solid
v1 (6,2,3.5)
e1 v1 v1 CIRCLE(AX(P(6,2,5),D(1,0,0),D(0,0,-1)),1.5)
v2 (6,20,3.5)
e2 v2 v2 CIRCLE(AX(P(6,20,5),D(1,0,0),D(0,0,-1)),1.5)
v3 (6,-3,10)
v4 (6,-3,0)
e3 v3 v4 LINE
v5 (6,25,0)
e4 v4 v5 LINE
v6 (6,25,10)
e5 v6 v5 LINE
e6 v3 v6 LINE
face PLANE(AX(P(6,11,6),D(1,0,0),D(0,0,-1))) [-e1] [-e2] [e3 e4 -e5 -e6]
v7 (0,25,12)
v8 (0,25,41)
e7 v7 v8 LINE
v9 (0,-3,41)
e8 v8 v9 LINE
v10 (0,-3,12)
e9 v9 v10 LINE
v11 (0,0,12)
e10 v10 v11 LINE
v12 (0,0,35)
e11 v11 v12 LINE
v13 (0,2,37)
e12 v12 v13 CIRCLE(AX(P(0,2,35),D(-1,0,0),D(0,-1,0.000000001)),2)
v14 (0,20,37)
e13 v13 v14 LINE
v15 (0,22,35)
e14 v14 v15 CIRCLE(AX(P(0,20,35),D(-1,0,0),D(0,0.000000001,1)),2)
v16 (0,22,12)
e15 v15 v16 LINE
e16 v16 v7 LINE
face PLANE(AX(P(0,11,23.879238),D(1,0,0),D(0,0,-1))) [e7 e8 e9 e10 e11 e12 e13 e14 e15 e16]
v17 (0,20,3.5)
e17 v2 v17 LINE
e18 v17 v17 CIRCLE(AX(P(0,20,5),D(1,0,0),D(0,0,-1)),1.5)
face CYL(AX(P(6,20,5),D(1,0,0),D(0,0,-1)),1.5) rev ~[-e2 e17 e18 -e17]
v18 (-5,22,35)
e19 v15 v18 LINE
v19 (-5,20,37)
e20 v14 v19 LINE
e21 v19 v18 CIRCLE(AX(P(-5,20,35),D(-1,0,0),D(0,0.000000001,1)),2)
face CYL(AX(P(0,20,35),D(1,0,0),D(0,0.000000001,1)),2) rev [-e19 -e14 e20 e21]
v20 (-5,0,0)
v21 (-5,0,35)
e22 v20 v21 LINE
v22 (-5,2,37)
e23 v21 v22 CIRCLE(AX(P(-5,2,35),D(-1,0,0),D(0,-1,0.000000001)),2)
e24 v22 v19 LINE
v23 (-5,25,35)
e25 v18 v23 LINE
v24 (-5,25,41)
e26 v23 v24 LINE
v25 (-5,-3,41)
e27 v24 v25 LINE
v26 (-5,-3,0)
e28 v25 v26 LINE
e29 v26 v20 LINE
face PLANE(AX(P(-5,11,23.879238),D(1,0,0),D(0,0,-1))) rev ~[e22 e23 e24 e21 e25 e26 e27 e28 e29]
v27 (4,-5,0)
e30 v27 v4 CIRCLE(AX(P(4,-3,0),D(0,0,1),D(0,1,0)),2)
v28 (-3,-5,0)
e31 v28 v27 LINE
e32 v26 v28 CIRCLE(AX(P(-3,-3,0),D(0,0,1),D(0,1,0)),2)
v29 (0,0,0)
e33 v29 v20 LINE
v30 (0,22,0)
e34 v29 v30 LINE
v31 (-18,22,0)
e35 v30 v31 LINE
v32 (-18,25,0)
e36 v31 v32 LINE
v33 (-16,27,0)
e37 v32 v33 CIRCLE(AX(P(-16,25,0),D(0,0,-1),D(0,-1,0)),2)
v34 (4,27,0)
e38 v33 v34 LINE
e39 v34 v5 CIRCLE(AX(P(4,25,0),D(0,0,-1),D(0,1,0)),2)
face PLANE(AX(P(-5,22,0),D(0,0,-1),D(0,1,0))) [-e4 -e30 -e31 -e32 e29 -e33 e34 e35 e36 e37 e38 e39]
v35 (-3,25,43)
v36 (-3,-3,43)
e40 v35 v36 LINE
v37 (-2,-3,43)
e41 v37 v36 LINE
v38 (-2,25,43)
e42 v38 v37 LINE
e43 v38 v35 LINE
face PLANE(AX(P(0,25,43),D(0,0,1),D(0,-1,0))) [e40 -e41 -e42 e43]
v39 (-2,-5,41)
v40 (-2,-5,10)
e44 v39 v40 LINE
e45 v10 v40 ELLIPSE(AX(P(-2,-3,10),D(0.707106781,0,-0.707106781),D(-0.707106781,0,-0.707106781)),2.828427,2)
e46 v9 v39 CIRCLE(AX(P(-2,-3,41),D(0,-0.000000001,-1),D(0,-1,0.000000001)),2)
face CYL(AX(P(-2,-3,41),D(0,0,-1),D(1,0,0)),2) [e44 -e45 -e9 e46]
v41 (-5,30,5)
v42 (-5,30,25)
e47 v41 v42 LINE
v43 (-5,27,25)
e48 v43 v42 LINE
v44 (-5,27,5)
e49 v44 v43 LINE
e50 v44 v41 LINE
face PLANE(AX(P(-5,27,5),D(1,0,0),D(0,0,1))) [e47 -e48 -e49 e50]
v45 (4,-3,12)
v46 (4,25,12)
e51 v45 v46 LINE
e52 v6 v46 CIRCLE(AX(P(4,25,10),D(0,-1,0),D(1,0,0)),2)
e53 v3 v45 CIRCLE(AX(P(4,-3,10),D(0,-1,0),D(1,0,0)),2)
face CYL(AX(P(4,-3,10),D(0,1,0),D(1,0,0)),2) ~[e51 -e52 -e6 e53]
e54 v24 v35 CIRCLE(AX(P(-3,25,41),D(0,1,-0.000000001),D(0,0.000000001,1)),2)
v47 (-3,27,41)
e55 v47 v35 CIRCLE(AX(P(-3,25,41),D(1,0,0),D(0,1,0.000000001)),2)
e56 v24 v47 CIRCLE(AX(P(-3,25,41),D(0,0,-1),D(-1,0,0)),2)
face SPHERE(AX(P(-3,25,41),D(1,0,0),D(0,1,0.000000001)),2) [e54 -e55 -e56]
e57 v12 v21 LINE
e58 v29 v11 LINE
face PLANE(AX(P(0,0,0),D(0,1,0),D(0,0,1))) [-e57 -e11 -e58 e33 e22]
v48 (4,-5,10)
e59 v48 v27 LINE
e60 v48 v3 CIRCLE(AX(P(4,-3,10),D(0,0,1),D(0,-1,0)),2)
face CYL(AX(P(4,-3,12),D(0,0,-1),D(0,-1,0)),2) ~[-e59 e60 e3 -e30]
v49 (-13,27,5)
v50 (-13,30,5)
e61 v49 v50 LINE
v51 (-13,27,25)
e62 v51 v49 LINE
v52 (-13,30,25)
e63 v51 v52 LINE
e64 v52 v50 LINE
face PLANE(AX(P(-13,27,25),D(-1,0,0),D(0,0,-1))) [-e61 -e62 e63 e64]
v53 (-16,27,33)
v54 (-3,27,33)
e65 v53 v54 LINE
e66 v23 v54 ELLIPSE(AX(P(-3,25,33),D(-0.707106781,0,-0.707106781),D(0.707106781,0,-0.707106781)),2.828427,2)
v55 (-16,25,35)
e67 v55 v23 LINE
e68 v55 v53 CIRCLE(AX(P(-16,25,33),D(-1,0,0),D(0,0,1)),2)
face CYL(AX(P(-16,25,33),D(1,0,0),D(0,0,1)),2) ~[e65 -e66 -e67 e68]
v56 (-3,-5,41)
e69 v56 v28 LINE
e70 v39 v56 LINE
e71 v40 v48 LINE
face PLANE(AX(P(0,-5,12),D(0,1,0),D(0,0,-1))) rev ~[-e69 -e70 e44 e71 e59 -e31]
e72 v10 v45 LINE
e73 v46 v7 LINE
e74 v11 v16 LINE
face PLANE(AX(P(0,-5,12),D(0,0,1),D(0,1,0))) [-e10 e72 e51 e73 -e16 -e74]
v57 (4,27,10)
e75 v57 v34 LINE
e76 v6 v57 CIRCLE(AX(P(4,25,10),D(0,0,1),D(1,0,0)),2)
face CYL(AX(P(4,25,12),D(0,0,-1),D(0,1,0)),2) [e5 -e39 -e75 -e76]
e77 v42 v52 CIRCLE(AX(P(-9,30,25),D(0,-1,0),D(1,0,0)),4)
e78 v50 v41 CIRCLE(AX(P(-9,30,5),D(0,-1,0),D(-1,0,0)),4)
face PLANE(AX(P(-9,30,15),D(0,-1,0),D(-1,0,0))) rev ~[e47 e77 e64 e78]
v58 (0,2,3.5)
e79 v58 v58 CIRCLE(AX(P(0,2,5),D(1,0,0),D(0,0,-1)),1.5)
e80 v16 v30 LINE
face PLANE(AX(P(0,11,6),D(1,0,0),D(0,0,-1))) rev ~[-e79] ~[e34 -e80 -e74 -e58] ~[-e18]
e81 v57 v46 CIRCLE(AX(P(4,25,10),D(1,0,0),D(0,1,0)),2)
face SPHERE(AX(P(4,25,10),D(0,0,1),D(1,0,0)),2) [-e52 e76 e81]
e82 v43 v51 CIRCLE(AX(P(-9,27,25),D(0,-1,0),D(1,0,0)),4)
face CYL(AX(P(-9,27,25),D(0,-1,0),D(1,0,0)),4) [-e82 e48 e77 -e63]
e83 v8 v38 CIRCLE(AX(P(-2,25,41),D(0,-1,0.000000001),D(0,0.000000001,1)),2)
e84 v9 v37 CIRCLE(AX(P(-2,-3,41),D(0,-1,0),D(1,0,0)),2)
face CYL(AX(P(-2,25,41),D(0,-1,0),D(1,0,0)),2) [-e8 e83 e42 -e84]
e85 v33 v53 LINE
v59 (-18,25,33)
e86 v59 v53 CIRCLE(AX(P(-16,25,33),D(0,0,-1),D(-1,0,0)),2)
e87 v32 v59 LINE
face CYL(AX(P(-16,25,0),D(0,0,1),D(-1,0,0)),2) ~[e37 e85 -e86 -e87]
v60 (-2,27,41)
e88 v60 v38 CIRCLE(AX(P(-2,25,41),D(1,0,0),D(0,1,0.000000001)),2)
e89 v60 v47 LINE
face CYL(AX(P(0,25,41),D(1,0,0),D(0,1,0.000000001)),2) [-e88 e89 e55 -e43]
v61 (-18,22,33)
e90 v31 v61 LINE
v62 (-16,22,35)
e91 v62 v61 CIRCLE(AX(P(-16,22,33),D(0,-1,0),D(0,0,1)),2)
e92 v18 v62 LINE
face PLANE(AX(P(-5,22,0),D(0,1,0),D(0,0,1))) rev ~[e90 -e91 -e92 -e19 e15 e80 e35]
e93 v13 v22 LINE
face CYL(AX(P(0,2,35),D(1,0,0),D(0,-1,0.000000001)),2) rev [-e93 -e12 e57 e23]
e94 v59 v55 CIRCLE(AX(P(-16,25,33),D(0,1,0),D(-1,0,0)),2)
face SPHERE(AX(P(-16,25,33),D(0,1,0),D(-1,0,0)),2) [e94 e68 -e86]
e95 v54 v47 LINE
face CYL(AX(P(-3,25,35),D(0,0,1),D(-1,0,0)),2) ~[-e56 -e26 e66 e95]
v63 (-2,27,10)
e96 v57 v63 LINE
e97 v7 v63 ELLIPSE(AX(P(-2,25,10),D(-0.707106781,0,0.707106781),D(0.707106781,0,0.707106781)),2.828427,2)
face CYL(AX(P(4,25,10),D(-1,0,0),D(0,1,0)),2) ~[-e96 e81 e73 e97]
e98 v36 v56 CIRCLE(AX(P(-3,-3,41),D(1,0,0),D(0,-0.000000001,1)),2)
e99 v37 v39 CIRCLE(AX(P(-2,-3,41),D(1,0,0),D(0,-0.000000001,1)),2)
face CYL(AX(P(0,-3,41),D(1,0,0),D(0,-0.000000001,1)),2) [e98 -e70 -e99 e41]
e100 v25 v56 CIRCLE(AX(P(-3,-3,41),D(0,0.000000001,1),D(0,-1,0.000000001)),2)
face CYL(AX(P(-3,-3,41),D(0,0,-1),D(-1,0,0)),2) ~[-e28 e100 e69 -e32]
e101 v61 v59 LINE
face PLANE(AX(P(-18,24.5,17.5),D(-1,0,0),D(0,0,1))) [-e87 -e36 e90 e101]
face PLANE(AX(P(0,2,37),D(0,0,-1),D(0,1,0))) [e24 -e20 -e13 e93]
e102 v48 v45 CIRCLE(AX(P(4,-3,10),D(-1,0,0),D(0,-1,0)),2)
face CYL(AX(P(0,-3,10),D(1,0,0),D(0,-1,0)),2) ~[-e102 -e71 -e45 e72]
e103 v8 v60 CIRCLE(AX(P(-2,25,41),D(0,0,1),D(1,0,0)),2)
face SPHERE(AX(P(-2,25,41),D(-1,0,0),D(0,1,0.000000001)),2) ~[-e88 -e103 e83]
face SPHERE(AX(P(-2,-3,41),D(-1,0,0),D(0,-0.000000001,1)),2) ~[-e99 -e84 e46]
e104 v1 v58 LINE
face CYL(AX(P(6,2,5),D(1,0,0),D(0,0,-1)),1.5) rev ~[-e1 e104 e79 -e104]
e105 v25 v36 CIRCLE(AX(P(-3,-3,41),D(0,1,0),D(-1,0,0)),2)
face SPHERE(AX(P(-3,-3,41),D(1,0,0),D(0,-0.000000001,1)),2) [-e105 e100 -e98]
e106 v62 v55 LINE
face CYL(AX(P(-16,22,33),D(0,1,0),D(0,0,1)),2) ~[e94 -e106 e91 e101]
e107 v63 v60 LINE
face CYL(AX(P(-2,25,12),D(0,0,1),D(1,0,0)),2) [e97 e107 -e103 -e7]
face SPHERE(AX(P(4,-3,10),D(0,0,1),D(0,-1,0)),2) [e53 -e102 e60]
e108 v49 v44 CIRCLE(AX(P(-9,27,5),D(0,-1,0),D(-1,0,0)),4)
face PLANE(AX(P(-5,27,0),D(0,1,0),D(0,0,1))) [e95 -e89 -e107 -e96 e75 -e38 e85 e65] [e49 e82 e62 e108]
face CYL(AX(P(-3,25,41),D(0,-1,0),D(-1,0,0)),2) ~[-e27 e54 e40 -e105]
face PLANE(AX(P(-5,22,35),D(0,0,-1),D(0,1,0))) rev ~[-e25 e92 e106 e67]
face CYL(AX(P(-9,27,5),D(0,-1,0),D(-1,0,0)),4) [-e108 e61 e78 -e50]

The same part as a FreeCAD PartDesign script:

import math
import FreeCAD as App
import Part
import Sketcher

V = App.Vector


def edges_at(feature, points):
    """Names of the edges that pass closest to the given points."""
    edges = feature.Shape.Edges
    near = lambda p: min(range(len(edges)), key=lambda i: edges[i].distToShape(Part.Vertex(*p))[0])
    return sorted({f"Edge{near(p) + 1}" for p in points})

doc = App.newDocument("Part")
body = doc.addObject("PartDesign::Body", "Body")

# Sketch on YZ plane
sketch1 = doc.addObject("Sketcher::SketchObject", "Sketch")
body.addObject(sketch1)
sketch1.AttachmentSupport = (doc.YZ_Plane, [""])
sketch1.MapMode = "FlatFace"
sketch1.addGeometry(Part.LineSegment(V(22, 0, 0), V(27, 0, 0)), False)
sketch1.addGeometry(Part.LineSegment(V(27, 0, 0), V(27, 41, 0)), False)
sketch1.addGeometry(Part.ArcOfCircle(Part.Circle(V(25, 41, 0), V(0, 0, 1), 2), math.radians(0), math.radians(90)), False)
sketch1.addGeometry(Part.LineSegment(V(25, 43, 0), V(-3, 43, 0)), False)
sketch1.addGeometry(Part.ArcOfCircle(Part.Circle(V(-3, 41, 0), V(0, 0, 1), 2), math.radians(90), math.radians(180)), False)
sketch1.addGeometry(Part.LineSegment(V(-5, 41, 0), V(-5, 0, 0)), False)
sketch1.addGeometry(Part.LineSegment(V(-5, 0, 0), V(0, 0, 0)), False)
sketch1.addGeometry(Part.LineSegment(V(0, 0, 0), V(0, 35, 0)), False)
sketch1.addGeometry(Part.ArcOfCircle(Part.Circle(V(2, 35, 0), V(0, 0, 1), 2), math.radians(90), math.radians(180)), False)
sketch1.addGeometry(Part.LineSegment(V(2, 37, 0), V(20, 37, 0)), False)
sketch1.addGeometry(Part.ArcOfCircle(Part.Circle(V(20, 35, 0), V(0, 0, 1), 2), math.radians(0), math.radians(90)), False)
sketch1.addGeometry(Part.LineSegment(V(22, 35, 0), V(22, 0, 0)), False)
sketch1.addConstraint(Sketcher.Constraint("Coincident", 0, 2, 1, 1))
sketch1.addConstraint(Sketcher.Constraint("Tangent", 1, 2, 2, 1))
sketch1.addConstraint(Sketcher.Constraint("Tangent", 2, 2, 3, 1))
sketch1.addConstraint(Sketcher.Constraint("Tangent", 3, 2, 4, 1))
sketch1.addConstraint(Sketcher.Constraint("Tangent", 4, 2, 5, 1))
sketch1.addConstraint(Sketcher.Constraint("Coincident", 5, 2, 6, 1))
sketch1.addConstraint(Sketcher.Constraint("Coincident", 6, 2, 7, 1))
sketch1.addConstraint(Sketcher.Constraint("Tangent", 7, 2, 8, 2))
sketch1.addConstraint(Sketcher.Constraint("Tangent", 8, 1, 9, 1))
sketch1.addConstraint(Sketcher.Constraint("Tangent", 9, 2, 10, 2))
sketch1.addConstraint(Sketcher.Constraint("Tangent", 10, 1, 11, 1))
sketch1.addConstraint(Sketcher.Constraint("Coincident", 11, 2, 0, 1))
sketch1.addConstraint(Sketcher.Constraint("Horizontal", 0))
sketch1.addConstraint(Sketcher.Constraint("Vertical", 1))
sketch1.addConstraint(Sketcher.Constraint("Horizontal", 3))
sketch1.addConstraint(Sketcher.Constraint("Vertical", 5))
sketch1.addConstraint(Sketcher.Constraint("Horizontal", 6))
sketch1.addConstraint(Sketcher.Constraint("Vertical", 7))
sketch1.addConstraint(Sketcher.Constraint("Horizontal", 9))
sketch1.addConstraint(Sketcher.Constraint("Vertical", 11))
sketch1.addConstraint(Sketcher.Constraint("Coincident", 6, 2, -1, 1))
sketch1.addConstraint(Sketcher.Constraint("Equal", 2, 4))
sketch1.addConstraint(Sketcher.Constraint("Equal", 4, 8))
sketch1.addConstraint(Sketcher.Constraint("Equal", 8, 10))
sketch1.addConstraint(Sketcher.Constraint("PointOnObject", 0, 2, -1))
sketch1.addConstraint(Sketcher.Constraint("Equal", 0, 6))
sketch1.addConstraint(Sketcher.Constraint("Radius", 2, 2.0))
sketch1.addConstraint(Sketcher.Constraint("DistanceX", 0, 1, 0, 2, 5.0))
sketch1.addConstraint(Sketcher.Constraint("DistanceX", 3, 2, 3, 1, 28.0))
sketch1.addConstraint(Sketcher.Constraint("DistanceY", 1, 1, 1, 2, 41.0))
sketch1.addConstraint(Sketcher.Constraint("DistanceY", 7, 1, 7, 2, 35.0))
pad1 = doc.addObject("PartDesign::Pad", "Pad")
body.addObject(pad1)
pad1.Profile = sketch1
pad1.Length = 5
pad1.Reversed = True

# Sketch on YZ plane
sketch2 = doc.addObject("Sketcher::SketchObject", "Sketch001")
body.addObject(sketch2)
sketch2.AttachmentSupport = (doc.YZ_Plane, [""])
sketch2.MapMode = "FlatFace"
sketch2.addGeometry(Part.LineSegment(V(27, 12, 0), V(-5, 12, 0)), False)
sketch2.addGeometry(Part.LineSegment(V(-5, 12, 0), V(-5, 0, 0)), False)
sketch2.addGeometry(Part.LineSegment(V(-5, 0, 0), V(27, 0, 0)), False)
sketch2.addGeometry(Part.LineSegment(V(27, 0, 0), V(27, 12, 0)), False)
sketch2.addConstraint(Sketcher.Constraint("Coincident", 0, 2, 1, 1))
sketch2.addConstraint(Sketcher.Constraint("Coincident", 1, 2, 2, 1))
sketch2.addConstraint(Sketcher.Constraint("Coincident", 2, 2, 3, 1))
sketch2.addConstraint(Sketcher.Constraint("Coincident", 3, 2, 0, 1))
sketch2.addConstraint(Sketcher.Constraint("Horizontal", 0))
sketch2.addConstraint(Sketcher.Constraint("Vertical", 1))
sketch2.addConstraint(Sketcher.Constraint("Horizontal", 2))
sketch2.addConstraint(Sketcher.Constraint("Vertical", 3))
sketch2.addConstraint(Sketcher.Constraint("PointOnObject", 1, 2, -1))
sketch2.addConstraint(Sketcher.Constraint("DistanceX", 0, 2, 0, 1, 32.0))
sketch2.addConstraint(Sketcher.Constraint("DistanceY", 1, 2, 1, 1, 12.0))
sketch2.addConstraint(Sketcher.Constraint("DistanceX", 0, 2, -1, 1, 5.0))
pad2 = doc.addObject("PartDesign::Pad", "Pad001")
body.addObject(pad2)
pad2.Profile = sketch2
pad2.Length = 6

# Sketch on YZ plane
sketch3 = doc.addObject("Sketcher::SketchObject", "Sketch002")
body.addObject(sketch3)
sketch3.AttachmentSupport = (doc.YZ_Plane, [""])
sketch3.MapMode = "FlatFace"
sketch3.AttachmentOffset = App.Placement(V(0, 0, 6), App.Rotation())
sketch3.addGeometry(Part.Circle(V(2, 5, 0), V(0, 0, 1), 1.5), False)
sketch3.addConstraint(Sketcher.Constraint("Diameter", 0, 3.0))
sketch3.addConstraint(Sketcher.Constraint("DistanceX", -1, 1, 0, 3, 2.0))
sketch3.addConstraint(Sketcher.Constraint("DistanceY", -1, 1, 0, 3, 5.0))
pocket1 = doc.addObject("PartDesign::Pocket", "Pocket")
body.addObject(pocket1)
pocket1.Profile = sketch3
pocket1.Type = "UpToFirst"

# Sketch on YZ plane
sketch4 = doc.addObject("Sketcher::SketchObject", "Sketch003")
body.addObject(sketch4)
sketch4.AttachmentSupport = (doc.YZ_Plane, [""])
sketch4.MapMode = "FlatFace"
sketch4.AttachmentOffset = App.Placement(V(0, 0, 6), App.Rotation())
sketch4.addGeometry(Part.Circle(V(20, 5, 0), V(0, 0, 1), 1.5), False)
sketch4.addConstraint(Sketcher.Constraint("Diameter", 0, 3.0))
sketch4.addConstraint(Sketcher.Constraint("DistanceX", -1, 1, 0, 3, 20.0))
sketch4.addConstraint(Sketcher.Constraint("DistanceY", -1, 1, 0, 3, 5.0))
pocket2 = doc.addObject("PartDesign::Pocket", "Pocket001")
body.addObject(pocket2)
pocket2.Profile = sketch4
pocket2.Type = "UpToFirst"
doc.recompute()

fillet = doc.addObject("PartDesign::Fillet", "Fillet")
body.addObject(fillet)
fillet.Base = (pocket2, edges_at(pocket2, [(6, 27, 6), (6, -5, 6)]))
fillet.Radius = 2

# Sketch on YZ plane
sketch5 = doc.addObject("Sketcher::SketchObject", "Sketch004")
body.addObject(sketch5)
sketch5.AttachmentSupport = (doc.YZ_Plane, [""])
sketch5.MapMode = "FlatFace"
sketch5.AttachmentOffset = App.Placement(V(0, 0, -5), App.Rotation())
sketch5.addGeometry(Part.LineSegment(V(27, 0, 0), V(22, 0, 0)), False)
sketch5.addGeometry(Part.LineSegment(V(22, 0, 0), V(22, 35, 0)), False)
sketch5.addGeometry(Part.LineSegment(V(22, 35, 0), V(27, 35, 0)), False)
sketch5.addGeometry(Part.LineSegment(V(27, 35, 0), V(27, 0, 0)), False)
sketch5.addConstraint(Sketcher.Constraint("Coincident", 0, 2, 1, 1))
sketch5.addConstraint(Sketcher.Constraint("Coincident", 1, 2, 2, 1))
sketch5.addConstraint(Sketcher.Constraint("Coincident", 2, 2, 3, 1))
sketch5.addConstraint(Sketcher.Constraint("Coincident", 3, 2, 0, 1))
sketch5.addConstraint(Sketcher.Constraint("Horizontal", 0))
sketch5.addConstraint(Sketcher.Constraint("Vertical", 1))
sketch5.addConstraint(Sketcher.Constraint("Horizontal", 2))
sketch5.addConstraint(Sketcher.Constraint("Vertical", 3))
sketch5.addConstraint(Sketcher.Constraint("PointOnObject", 0, 2, -1))
sketch5.addConstraint(Sketcher.Constraint("DistanceX", 0, 2, 0, 1, 5.0))
sketch5.addConstraint(Sketcher.Constraint("DistanceY", 1, 1, 1, 2, 35.0))
sketch5.addConstraint(Sketcher.Constraint("DistanceX", -1, 1, 0, 2, 22.0))
pad3 = doc.addObject("PartDesign::Pad", "Pad002")
body.addObject(pad3)
pad3.Profile = sketch5
pad3.Length = 13
pad3.Reversed = True
doc.recompute()

fillet2 = doc.addObject("PartDesign::Fillet", "Fillet001")
body.addObject(fillet2)
fillet2.Base = (pad3, edges_at(pad3, [(-18, 24.5, 35)]))
fillet2.Radius = 2
doc.recompute()

fillet3 = doc.addObject("PartDesign::Fillet", "Fillet002")
body.addObject(fillet3)
fillet3.Base = (fillet2, edges_at(fillet2, [
    (0, -5, 26.5),
    (0, -4.414, 42.414),
    (0, 11, 43),
    (0, 26.414, 42.414),
    (0, 27, 26.5),
    (-5, 26.414, 42.414),
    (-5, 11, 43),
    (-5, -4.414, 42.414),
    (-5, -5, 20.5),
    (6, 11, 12),
    (2, -5, 12),
    (2, 27, 12),
    (5.414, -4.414, 12),
    (5.414, 26.414, 12),
    (-5, 27, 38),
]))
fillet3.Radius = 2
doc.recompute()

fillet4 = doc.addObject("PartDesign::Fillet", "Fillet003")
body.addObject(fillet4)
fillet4.Base = (fillet3, edges_at(fillet3, [(-18, 27, 16.5), (-17.414, 27, 34.414), (-9.5, 27, 35)]))
fillet4.Radius = 2

# Sketch on XZ plane
sketch6 = doc.addObject("Sketcher::SketchObject", "Sketch005")
body.addObject(sketch6)
sketch6.AttachmentSupport = (doc.XZ_Plane, [""])
sketch6.MapMode = "FlatFace"
sketch6.AttachmentOffset = App.Placement(V(0, 0, -27), App.Rotation())
sketch6.addGeometry(Part.LineSegment(V(-5, 25, 0), V(-5, 5, 0)), False)
sketch6.addGeometry(Part.ArcOfCircle(Part.Circle(V(-9, 5, 0), V(0, 0, 1), 4), math.radians(180), math.radians(360)), False)
sketch6.addGeometry(Part.LineSegment(V(-13, 5, 0), V(-13, 25, 0)), False)
sketch6.addGeometry(Part.ArcOfCircle(Part.Circle(V(-9, 25, 0), V(0, 0, 1), 4), math.radians(0), math.radians(180)), False)
sketch6.addConstraint(Sketcher.Constraint("Tangent", 0, 2, 1, 2))
sketch6.addConstraint(Sketcher.Constraint("Tangent", 1, 1, 2, 1))
sketch6.addConstraint(Sketcher.Constraint("Tangent", 2, 2, 3, 2))
sketch6.addConstraint(Sketcher.Constraint("Tangent", 3, 1, 0, 1))
sketch6.addConstraint(Sketcher.Constraint("Vertical", 0))
sketch6.addConstraint(Sketcher.Constraint("Vertical", 2))
sketch6.addConstraint(Sketcher.Constraint("Radius", 1, 4.0))
sketch6.addConstraint(Sketcher.Constraint("DistanceY", 0, 2, 0, 1, 20.0))
sketch6.addConstraint(Sketcher.Constraint("DistanceX", 1, 3, -1, 1, 9.0))
sketch6.addConstraint(Sketcher.Constraint("DistanceY", -1, 1, 1, 3, 5.0))
pad4 = doc.addObject("PartDesign::Pad", "Pad003")
body.addObject(pad4)
pad4.Profile = sketch6
pad4.Length = 3
pad4.Reversed = True

doc.recompute()
